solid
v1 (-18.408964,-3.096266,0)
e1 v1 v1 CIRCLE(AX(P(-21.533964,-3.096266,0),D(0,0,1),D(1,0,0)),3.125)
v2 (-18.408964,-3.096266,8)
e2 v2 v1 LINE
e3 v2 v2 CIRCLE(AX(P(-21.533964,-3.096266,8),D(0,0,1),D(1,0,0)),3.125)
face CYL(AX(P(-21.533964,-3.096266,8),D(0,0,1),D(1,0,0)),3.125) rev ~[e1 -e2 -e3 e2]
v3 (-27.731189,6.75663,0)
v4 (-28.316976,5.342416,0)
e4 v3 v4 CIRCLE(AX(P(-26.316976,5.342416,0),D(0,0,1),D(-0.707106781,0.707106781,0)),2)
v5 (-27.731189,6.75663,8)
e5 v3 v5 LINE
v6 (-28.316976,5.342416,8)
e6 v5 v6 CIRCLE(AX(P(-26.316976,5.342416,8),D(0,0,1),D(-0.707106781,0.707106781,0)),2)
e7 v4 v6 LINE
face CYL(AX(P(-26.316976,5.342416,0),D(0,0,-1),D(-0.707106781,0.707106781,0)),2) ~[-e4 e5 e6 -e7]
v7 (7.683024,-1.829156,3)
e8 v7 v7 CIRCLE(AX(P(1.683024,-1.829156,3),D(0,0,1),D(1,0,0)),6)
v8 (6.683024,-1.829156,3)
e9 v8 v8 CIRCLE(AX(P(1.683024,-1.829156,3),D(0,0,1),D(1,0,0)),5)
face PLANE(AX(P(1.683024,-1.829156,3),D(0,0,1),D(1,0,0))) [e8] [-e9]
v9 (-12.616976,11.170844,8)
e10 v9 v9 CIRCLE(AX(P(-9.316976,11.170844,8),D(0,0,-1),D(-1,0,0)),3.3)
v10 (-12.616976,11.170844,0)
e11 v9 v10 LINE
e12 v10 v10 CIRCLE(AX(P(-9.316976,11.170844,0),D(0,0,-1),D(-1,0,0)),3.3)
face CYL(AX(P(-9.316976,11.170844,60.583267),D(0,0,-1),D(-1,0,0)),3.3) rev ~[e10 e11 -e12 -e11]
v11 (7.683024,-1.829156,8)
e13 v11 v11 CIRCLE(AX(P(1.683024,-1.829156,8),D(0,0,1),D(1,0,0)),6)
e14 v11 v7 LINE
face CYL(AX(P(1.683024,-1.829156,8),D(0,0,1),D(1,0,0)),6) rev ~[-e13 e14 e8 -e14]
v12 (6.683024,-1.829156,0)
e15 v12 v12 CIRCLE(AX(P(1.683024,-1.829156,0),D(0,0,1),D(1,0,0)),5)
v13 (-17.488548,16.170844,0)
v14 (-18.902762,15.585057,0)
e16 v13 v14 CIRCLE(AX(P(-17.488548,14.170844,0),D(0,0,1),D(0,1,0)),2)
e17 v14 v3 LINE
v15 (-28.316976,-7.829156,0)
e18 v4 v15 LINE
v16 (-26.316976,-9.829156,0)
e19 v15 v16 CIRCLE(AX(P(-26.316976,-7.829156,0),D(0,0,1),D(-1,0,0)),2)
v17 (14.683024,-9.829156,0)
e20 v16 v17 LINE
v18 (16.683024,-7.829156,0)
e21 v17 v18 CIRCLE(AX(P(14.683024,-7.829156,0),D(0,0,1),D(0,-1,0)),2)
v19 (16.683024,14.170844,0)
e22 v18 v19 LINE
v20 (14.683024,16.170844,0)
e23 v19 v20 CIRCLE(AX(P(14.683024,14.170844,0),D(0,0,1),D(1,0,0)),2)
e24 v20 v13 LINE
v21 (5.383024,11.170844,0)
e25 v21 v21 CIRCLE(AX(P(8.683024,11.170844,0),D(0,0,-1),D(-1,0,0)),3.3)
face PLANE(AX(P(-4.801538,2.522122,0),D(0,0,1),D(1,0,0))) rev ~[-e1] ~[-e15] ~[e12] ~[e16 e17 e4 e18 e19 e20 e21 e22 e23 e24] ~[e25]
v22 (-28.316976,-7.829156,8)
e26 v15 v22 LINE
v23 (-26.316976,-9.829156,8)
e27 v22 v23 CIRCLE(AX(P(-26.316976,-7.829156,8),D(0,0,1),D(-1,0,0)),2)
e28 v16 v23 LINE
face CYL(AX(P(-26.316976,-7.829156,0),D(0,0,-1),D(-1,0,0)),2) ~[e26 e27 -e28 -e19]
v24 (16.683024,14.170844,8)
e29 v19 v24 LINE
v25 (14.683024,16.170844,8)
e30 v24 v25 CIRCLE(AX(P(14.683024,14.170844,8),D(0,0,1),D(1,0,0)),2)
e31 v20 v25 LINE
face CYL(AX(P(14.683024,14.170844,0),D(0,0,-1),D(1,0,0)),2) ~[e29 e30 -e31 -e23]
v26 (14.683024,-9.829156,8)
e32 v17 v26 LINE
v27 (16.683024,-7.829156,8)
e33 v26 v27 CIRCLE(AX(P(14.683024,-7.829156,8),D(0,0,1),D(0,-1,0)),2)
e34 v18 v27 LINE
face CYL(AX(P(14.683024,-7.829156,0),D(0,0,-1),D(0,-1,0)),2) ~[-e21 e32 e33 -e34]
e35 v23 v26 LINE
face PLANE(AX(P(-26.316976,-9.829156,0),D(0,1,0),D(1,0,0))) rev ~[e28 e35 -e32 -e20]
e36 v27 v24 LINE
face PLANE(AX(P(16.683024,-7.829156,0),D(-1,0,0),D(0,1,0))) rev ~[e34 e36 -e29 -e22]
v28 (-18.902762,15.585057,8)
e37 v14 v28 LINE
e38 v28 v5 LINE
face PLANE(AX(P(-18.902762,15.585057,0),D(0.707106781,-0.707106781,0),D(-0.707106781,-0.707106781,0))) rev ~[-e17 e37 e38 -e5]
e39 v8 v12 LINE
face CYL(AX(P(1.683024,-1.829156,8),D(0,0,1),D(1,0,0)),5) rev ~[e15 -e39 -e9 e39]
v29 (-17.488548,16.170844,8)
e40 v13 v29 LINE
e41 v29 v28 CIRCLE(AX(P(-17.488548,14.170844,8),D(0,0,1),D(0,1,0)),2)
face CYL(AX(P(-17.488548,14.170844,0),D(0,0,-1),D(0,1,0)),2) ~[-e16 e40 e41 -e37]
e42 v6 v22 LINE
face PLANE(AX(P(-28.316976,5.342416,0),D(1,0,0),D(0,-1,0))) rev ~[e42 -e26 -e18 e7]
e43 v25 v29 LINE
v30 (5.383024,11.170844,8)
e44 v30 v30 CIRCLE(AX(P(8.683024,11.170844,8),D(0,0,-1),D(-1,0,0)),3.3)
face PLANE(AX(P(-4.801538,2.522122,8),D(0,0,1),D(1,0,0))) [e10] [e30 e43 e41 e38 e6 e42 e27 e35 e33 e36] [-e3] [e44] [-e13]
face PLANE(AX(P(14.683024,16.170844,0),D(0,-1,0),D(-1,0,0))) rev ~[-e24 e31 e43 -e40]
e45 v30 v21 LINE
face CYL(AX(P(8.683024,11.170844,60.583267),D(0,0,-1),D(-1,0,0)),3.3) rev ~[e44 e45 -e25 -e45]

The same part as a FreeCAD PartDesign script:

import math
import FreeCAD as App
import Part
import Sketcher

V = App.Vector
Q = App.Units.Quantity

doc = App.newDocument("Part")
body = doc.addObject("PartDesign::Body", "Body")

# Sketch on XY plane
sketch1 = body.newObject("Sketcher::SketchObject", "Sketch")
sketch1.AttachmentSupport = (doc.getObject("XY_Plane"), [""])
sketch1.MapMode = "FlatFace"
sketch1.addGeometry(Part.ArcOfCircle(Part.Circle(V(-26.3, -7.8, 0), V(0, 0, 1), 2), math.radians(180), math.radians(270)), False)
sketch1.addGeometry(Part.LineSegment(V(-26.3, -9.8, 0), V(14.7, -9.8, 0)), False)
sketch1.addGeometry(Part.ArcOfCircle(Part.Circle(V(14.7, -7.8, 0), V(0, 0, 1), 2), math.radians(-90), math.radians(0)), False)
sketch1.addGeometry(Part.LineSegment(V(16.7, -7.8, 0), V(16.7, 14.2, 0)), False)
sketch1.addGeometry(Part.ArcOfCircle(Part.Circle(V(14.7, 14.2, 0), V(0, 0, 1), 2), math.radians(0), math.radians(90)), False)
sketch1.addGeometry(Part.LineSegment(V(14.7, 16.2, 0), V(-17.5, 16.2, 0)), False)
sketch1.addGeometry(Part.ArcOfCircle(Part.Circle(V(-17.5, 14.2, 0), V(0, 0, 1), 2), math.radians(90), math.radians(135)), False)
sketch1.addGeometry(Part.LineSegment(V(-18.9, 15.6, 0), V(-27.7, 6.8, 0)), False)
sketch1.addGeometry(Part.ArcOfCircle(Part.Circle(V(-26.3, 5.3, 0), V(0, 0, 1), 2), math.radians(135), math.radians(180)), False)
sketch1.addGeometry(Part.LineSegment(V(-28.3, 5.3, 0), V(-28.3, -7.8, 0)), False)
sketch1.addConstraint(Sketcher.Constraint("Tangent", 0, 2, 1, 1))
sketch1.addConstraint(Sketcher.Constraint("Tangent", 1, 2, 2, 1))
sketch1.addConstraint(Sketcher.Constraint("Tangent", 2, 2, 3, 1))
sketch1.addConstraint(Sketcher.Constraint("Tangent", 3, 2, 4, 1))
sketch1.addConstraint(Sketcher.Constraint("Tangent", 4, 2, 5, 1))
sketch1.addConstraint(Sketcher.Constraint("Tangent", 5, 2, 6, 1))
sketch1.addConstraint(Sketcher.Constraint("Tangent", 6, 2, 7, 1))
sketch1.addConstraint(Sketcher.Constraint("Tangent", 7, 2, 8, 1))
sketch1.addConstraint(Sketcher.Constraint("Tangent", 8, 2, 9, 1))
sketch1.addConstraint(Sketcher.Constraint("Tangent", 9, 2, 0, 1))
sketch1.addConstraint(Sketcher.Constraint("Horizontal", 1))
sketch1.addConstraint(Sketcher.Constraint("Vertical", 3))
sketch1.addConstraint(Sketcher.Constraint("Horizontal", 5))
sketch1.addConstraint(Sketcher.Constraint("Vertical", 9))
sketch1.addConstraint(Sketcher.Constraint("Equal", 0, 2))
sketch1.addConstraint(Sketcher.Constraint("Equal", 2, 4))
sketch1.addConstraint(Sketcher.Constraint("Equal", 4, 6))
sketch1.addConstraint(Sketcher.Constraint("Equal", 6, 8))
sketch1.addConstraint(Sketcher.Constraint("Radius", 0, 2.0))
sketch1.addConstraint(Sketcher.Constraint("DistanceX", 1, 1, 1, 2, 41.0))
sketch1.addConstraint(Sketcher.Constraint("DistanceY", 3, 1, 3, 2, 22.0))
sketch1.addConstraint(Sketcher.Constraint("Angle", 7, Q("-135 deg")))
sketch1.addConstraint(Sketcher.Constraint("Distance", 7, 12.485281))
sketch1.addConstraint(Sketcher.Constraint("DistanceX", 6, 3, -1, 1, 17.488548))
sketch1.addConstraint(Sketcher.Constraint("DistanceY", -1, 1, 7, 2, 6.75663))
pad1 = body.newObject("PartDesign::Pad", "Pad")
pad1.Profile = sketch1
pad1.Length = 8

# Sketch on XY plane
sketch2 = body.newObject("Sketcher::SketchObject", "Sketch001")
sketch2.AttachmentSupport = (doc.getObject("XY_Plane"), [""])
sketch2.MapMode = "FlatFace"
sketch2.AttachmentOffset = App.Placement(V(0, 0, 8), App.Rotation())
sketch2.addGeometry(Part.Circle(V(2, -2, 0), V(0, 0, 1), 5), False)
sketch2.addConstraint(Sketcher.Constraint("Diameter", 0, 10.0))
sketch2.addConstraint(Sketcher.Constraint("DistanceX", -1, 1, 0, 3, 1.683024))
sketch2.addConstraint(Sketcher.Constraint("DistanceY", 0, 3, -1, 1, 1.829156))
pocket1 = body.newObject("PartDesign::Pocket", "Pocket")
pocket1.Profile = sketch2
pocket1.Type = "ThroughAll"

# Sketch on XY plane
sketch3 = body.newObject("Sketcher::SketchObject", "Sketch002")
sketch3.AttachmentSupport = (doc.getObject("XY_Plane"), [""])
sketch3.MapMode = "FlatFace"
sketch3.AttachmentOffset = App.Placement(V(0, 0, 8), App.Rotation())
sketch3.addGeometry(Part.Circle(V(2, -2, 0), V(0, 0, 1), 6), False)
sketch3.addConstraint(Sketcher.Constraint("Diameter", 0, 12.0))
sketch3.addConstraint(Sketcher.Constraint("DistanceX", -1, 1, 0, 3, 1.683024))
sketch3.addConstraint(Sketcher.Constraint("DistanceY", 0, 3, -1, 1, 1.829156))
pocket2 = body.newObject("PartDesign::Pocket", "Pocket001")
pocket2.Profile = sketch3
pocket2.Length = 5

# Sketch on XY plane
sketch4 = body.newObject("Sketcher::SketchObject", "Sketch003")
sketch4.AttachmentSupport = (doc.getObject("XY_Plane"), [""])
sketch4.MapMode = "FlatFace"
sketch4.AttachmentOffset = App.Placement(V(0, 0, 8), App.Rotation())
sketch4.addGeometry(Part.Circle(V(-9.3, 11.2, 0), V(0, 0, 1), 3.3), False)
sketch4.addGeometry(Part.Circle(V(8.7, 11.2, 0), V(0, 0, 1), 3.3), False)
sketch4.addConstraint(Sketcher.Constraint("Equal", 0, 1))
sketch4.addConstraint(Sketcher.Constraint("Horizontal", 0, 3, 1, 3))
sketch4.addConstraint(Sketcher.Constraint("Diameter", 0, 6.6))
sketch4.addConstraint(Sketcher.Constraint("DistanceX", 0, 3, 1, 3, 18.0))
sketch4.addConstraint(Sketcher.Constraint("DistanceX", 0, 3, -1, 1, 9.316976))
sketch4.addConstraint(Sketcher.Constraint("DistanceY", -1, 1, 0, 3, 11.170844))
doc.recompute()
hole = body.newObject("PartDesign::Hole", "Hole")
hole.Profile = sketch4
hole.ThreadType = "None"
hole.Diameter = 6.6
hole.DepthType = "ThroughAll"

# Sketch on XY plane
sketch5 = body.newObject("Sketcher::SketchObject", "Sketch004")
sketch5.AttachmentSupport = (doc.getObject("XY_Plane"), [""])
sketch5.MapMode = "FlatFace"
sketch5.AttachmentOffset = App.Placement(V(0, 0, 8), App.Rotation())
sketch5.addGeometry(Part.Circle(V(-21.5, -3.1, 0), V(0, 0, 1), 3.1), False)
sketch5.addConstraint(Sketcher.Constraint("Diameter", 0, 6.25))
sketch5.addConstraint(Sketcher.Constraint("DistanceX", 0, 3, -1, 1, 21.533964))
sketch5.addConstraint(Sketcher.Constraint("DistanceY", 0, 3, -1, 1, 3.096266))
pocket3 = body.newObject("PartDesign::Pocket", "Pocket002")
pocket3.Profile = sketch5
pocket3.Type = "ThroughAll"

doc.recompute()
